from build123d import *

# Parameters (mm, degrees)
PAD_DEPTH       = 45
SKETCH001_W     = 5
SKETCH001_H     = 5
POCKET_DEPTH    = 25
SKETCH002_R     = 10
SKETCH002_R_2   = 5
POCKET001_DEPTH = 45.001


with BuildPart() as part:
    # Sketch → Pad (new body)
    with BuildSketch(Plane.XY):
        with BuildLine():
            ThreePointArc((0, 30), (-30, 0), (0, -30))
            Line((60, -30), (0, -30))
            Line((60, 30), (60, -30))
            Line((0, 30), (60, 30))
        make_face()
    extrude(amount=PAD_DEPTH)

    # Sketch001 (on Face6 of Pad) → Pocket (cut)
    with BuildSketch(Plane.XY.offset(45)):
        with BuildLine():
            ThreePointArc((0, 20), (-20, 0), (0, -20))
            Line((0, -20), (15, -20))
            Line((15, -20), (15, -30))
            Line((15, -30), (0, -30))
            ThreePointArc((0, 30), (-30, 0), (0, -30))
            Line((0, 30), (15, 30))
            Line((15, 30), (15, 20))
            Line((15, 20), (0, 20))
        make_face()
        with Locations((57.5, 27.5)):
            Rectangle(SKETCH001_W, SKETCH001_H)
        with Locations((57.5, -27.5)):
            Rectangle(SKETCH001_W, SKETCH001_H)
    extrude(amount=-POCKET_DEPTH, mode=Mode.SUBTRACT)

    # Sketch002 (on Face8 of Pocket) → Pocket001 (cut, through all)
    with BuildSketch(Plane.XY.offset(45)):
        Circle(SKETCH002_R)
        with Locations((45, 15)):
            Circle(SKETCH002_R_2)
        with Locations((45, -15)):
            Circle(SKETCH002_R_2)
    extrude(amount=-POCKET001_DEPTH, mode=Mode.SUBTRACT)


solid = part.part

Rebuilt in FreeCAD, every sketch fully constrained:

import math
import FreeCAD as App
import Part
import Sketcher


def add_polygon(sketch, points):
    """Adds a closed chain of lines whose ends are joined by coincident constraints."""
    first, n = sketch.GeometryCount, len(points)
    for a, b in zip(points, points[1:] + points[:1]):
        sketch.addGeometry(Part.LineSegment(App.Vector(*a, 0), App.Vector(*b, 0)), False)
    for i in range(n):
        sketch.addConstraint(Sketcher.Constraint("Coincident", first + i, 2, first + (i + 1) % n, 1))

doc = App.newDocument("Part")
body = doc.addObject("PartDesign::Body", "Body")

sketch1 = body.newObject("Sketcher::SketchObject", "Sketch")
sketch1.AttachmentSupport = (doc.getObject("XY_Plane"), [""])
sketch1.MapMode = "FlatFace"
sketch1.addGeometry(Part.ArcOfCircle(Part.Circle(App.Vector(0, 0, 0), App.Vector(0, 0, 1), 30), math.radians(90), math.radians(270)), False)
sketch1.addGeometry(Part.LineSegment(App.Vector(0, -30, 0), App.Vector(60, -30, 0)), False)
sketch1.addGeometry(Part.LineSegment(App.Vector(60, -30, 0), App.Vector(60, 30, 0)), False)
sketch1.addGeometry(Part.LineSegment(App.Vector(60, 30, 0), App.Vector(0, 30, 0)), False)
sketch1.addConstraint(Sketcher.Constraint("Tangent", 0, 2, 1, 1))
sketch1.addConstraint(Sketcher.Constraint("Coincident", 1, 2, 2, 1))
sketch1.addConstraint(Sketcher.Constraint("Coincident", 2, 2, 3, 1))
sketch1.addConstraint(Sketcher.Constraint("Tangent", 3, 2, 0, 1))
sketch1.addConstraint(Sketcher.Constraint("Horizontal", 1))
sketch1.addConstraint(Sketcher.Constraint("Vertical", 2))
sketch1.addConstraint(Sketcher.Constraint("Horizontal", 3))
sketch1.addConstraint(Sketcher.Constraint("Coincident", 0, 3, -1, 1))
sketch1.addConstraint(Sketcher.Constraint("Equal", 3, 2))
sketch1.addConstraint(Sketcher.Constraint("Radius", 0, 30.0))
pad1 = body.newObject("PartDesign::Pad", "Pad")
pad1.Profile = sketch1
pad1.Length = 45

sketch2 = body.newObject("Sketcher::SketchObject", "Sketch001")
sketch2.AttachmentSupport = (doc.getObject("XY_Plane"), [""])
sketch2.MapMode = "FlatFace"
sketch2.AttachmentOffset = App.Placement(App.Vector(0, 0, 45), App.Rotation())
sketch2.addGeometry(Part.ArcOfCircle(Part.Circle(App.Vector(0, 0, 0), App.Vector(0, 0, 1), 20), math.radians(90), math.radians(270)), False)
sketch2.addGeometry(Part.LineSegment(App.Vector(0, 20, 0), App.Vector(15, 20, 0)), False)
sketch2.addGeometry(Part.LineSegment(App.Vector(15, 20, 0), App.Vector(15, 30, 0)), False)
sketch2.addGeometry(Part.LineSegment(App.Vector(15, 30, 0), App.Vector(0, 30, 0)), False)
sketch2.addGeometry(Part.ArcOfCircle(Part.Circle(App.Vector(0, 0, 0), App.Vector(0, 0, 1), 30), math.radians(90), math.radians(270)), False)
sketch2.addGeometry(Part.LineSegment(App.Vector(0, -30, 0), App.Vector(15, -30, 0)), False)
sketch2.addGeometry(Part.LineSegment(App.Vector(15, -30, 0), App.Vector(15, -20, 0)), False)
sketch2.addGeometry(Part.LineSegment(App.Vector(15, -20, 0), App.Vector(0, -20, 0)), False)
add_polygon(sketch2, [(55, 30), (55, 25), (60, 25), (60, 30)])
add_polygon(sketch2, [(55, -25), (55, -30), (60, -30), (60, -25)])
sketch2.addConstraint(Sketcher.Constraint("Tangent", 0, 1, 1, 1))
sketch2.addConstraint(Sketcher.Constraint("Coincident", 1, 2, 2, 1))
sketch2.addConstraint(Sketcher.Constraint("Coincident", 2, 2, 3, 1))
sketch2.addConstraint(Sketcher.Constraint("Tangent", 3, 2, 4, 1))
sketch2.addConstraint(Sketcher.Constraint("Tangent", 4, 2, 5, 1))
sketch2.addConstraint(Sketcher.Constraint("Coincident", 5, 2, 6, 1))
sketch2.addConstraint(Sketcher.Constraint("Coincident", 6, 2, 7, 1))
sketch2.addConstraint(Sketcher.Constraint("Tangent", 7, 2, 0, 2))
sketch2.addConstraint(Sketcher.Constraint("Horizontal", 1))
sketch2.addConstraint(Sketcher.Constraint("Vertical", 2))
sketch2.addConstraint(Sketcher.Constraint("Horizontal", 3))
sketch2.addConstraint(Sketcher.Constraint("Horizontal", 5))
sketch2.addConstraint(Sketcher.Constraint("Vertical", 6))
sketch2.addConstraint(Sketcher.Constraint("Horizontal", 7))
sketch2.addConstraint(Sketcher.Constraint("Vertical", 8))
sketch2.addConstraint(Sketcher.Constraint("Horizontal", 9))
sketch2.addConstraint(Sketcher.Constraint("Vertical", 10))
sketch2.addConstraint(Sketcher.Constraint("Horizontal", 11))
sketch2.addConstraint(Sketcher.Constraint("Vertical", 12))
sketch2.addConstraint(Sketcher.Constraint("Horizontal", 13))
sketch2.addConstraint(Sketcher.Constraint("Vertical", 14))
sketch2.addConstraint(Sketcher.Constraint("Horizontal", 15))
sketch2.addConstraint(Sketcher.Constraint("Coincident", 0, 3, -1, 1))
sketch2.addConstraint(Sketcher.Constraint("Coincident", 4, 3, -1, 1))
sketch2.addConstraint(Sketcher.Constraint("Symmetric", 11, 2, 12, 2, -1))
sketch2.addConstraint(Sketcher.Constraint("Symmetric", 9, 2, 14, 2, -1))
sketch2.addConstraint(Sketcher.Constraint("Horizontal", 3, 2, 10, 2))
sketch2.addConstraint(Sketcher.Constraint("Vertical", 2, 2, 5, 2))
sketch2.addConstraint(Sketcher.Constraint("Equal", 15, 8))
sketch2.addConstraint(Sketcher.Constraint("Radius", 0, 20.0))
sketch2.addConstraint(Sketcher.Constraint("Radius", 4, 30.0))
sketch2.addConstraint(Sketcher.Constraint("DistanceX", 1, 1, 1, 2, 15.0))
sketch2.addConstraint(Sketcher.Constraint("DistanceX", 9, 1, 9, 2, 5.0))
sketch2.addConstraint(Sketcher.Constraint("DistanceX", -1, 1, 8, 2, 55.0))
pocket1 = body.newObject("PartDesign::Pocket", "Pocket")
pocket1.Profile = sketch2
pocket1.Length = 25

sketch3 = body.newObject("Sketcher::SketchObject", "Sketch002")
sketch3.AttachmentSupport = (doc.getObject("XY_Plane"), [""])
sketch3.MapMode = "FlatFace"
sketch3.AttachmentOffset = App.Placement(App.Vector(0, 0, 45), App.Rotation())
sketch3.addGeometry(Part.Circle(App.Vector(0, 0, 0), App.Vector(0, 0, 1), 10), False)
sketch3.addGeometry(Part.Circle(App.Vector(45, 15, 0), App.Vector(0, 0, 1), 5), False)
sketch3.addGeometry(Part.Circle(App.Vector(45, -15, 0), App.Vector(0, 0, 1), 5), False)
sketch3.addConstraint(Sketcher.Constraint("Coincident", 0, 3, -1, 1))
sketch3.addConstraint(Sketcher.Constraint("Equal", 1, 2))
sketch3.addConstraint(Sketcher.Constraint("Symmetric", 1, 3, 2, 3, -1))
sketch3.addConstraint(Sketcher.Constraint("Diameter", 0, 20.0))
sketch3.addConstraint(Sketcher.Constraint("Diameter", 1, 10.0))
sketch3.addConstraint(Sketcher.Constraint("DistanceX", -1, 1, 1, 3, 45.0))
sketch3.addConstraint(Sketcher.Constraint("DistanceY", -1, 1, 1, 3, 15.0))
pocket2 = body.newObject("PartDesign::Pocket", "Pocket001")
pocket2.Profile = sketch3
pocket2.Type = "ThroughAll"

doc.recompute()
